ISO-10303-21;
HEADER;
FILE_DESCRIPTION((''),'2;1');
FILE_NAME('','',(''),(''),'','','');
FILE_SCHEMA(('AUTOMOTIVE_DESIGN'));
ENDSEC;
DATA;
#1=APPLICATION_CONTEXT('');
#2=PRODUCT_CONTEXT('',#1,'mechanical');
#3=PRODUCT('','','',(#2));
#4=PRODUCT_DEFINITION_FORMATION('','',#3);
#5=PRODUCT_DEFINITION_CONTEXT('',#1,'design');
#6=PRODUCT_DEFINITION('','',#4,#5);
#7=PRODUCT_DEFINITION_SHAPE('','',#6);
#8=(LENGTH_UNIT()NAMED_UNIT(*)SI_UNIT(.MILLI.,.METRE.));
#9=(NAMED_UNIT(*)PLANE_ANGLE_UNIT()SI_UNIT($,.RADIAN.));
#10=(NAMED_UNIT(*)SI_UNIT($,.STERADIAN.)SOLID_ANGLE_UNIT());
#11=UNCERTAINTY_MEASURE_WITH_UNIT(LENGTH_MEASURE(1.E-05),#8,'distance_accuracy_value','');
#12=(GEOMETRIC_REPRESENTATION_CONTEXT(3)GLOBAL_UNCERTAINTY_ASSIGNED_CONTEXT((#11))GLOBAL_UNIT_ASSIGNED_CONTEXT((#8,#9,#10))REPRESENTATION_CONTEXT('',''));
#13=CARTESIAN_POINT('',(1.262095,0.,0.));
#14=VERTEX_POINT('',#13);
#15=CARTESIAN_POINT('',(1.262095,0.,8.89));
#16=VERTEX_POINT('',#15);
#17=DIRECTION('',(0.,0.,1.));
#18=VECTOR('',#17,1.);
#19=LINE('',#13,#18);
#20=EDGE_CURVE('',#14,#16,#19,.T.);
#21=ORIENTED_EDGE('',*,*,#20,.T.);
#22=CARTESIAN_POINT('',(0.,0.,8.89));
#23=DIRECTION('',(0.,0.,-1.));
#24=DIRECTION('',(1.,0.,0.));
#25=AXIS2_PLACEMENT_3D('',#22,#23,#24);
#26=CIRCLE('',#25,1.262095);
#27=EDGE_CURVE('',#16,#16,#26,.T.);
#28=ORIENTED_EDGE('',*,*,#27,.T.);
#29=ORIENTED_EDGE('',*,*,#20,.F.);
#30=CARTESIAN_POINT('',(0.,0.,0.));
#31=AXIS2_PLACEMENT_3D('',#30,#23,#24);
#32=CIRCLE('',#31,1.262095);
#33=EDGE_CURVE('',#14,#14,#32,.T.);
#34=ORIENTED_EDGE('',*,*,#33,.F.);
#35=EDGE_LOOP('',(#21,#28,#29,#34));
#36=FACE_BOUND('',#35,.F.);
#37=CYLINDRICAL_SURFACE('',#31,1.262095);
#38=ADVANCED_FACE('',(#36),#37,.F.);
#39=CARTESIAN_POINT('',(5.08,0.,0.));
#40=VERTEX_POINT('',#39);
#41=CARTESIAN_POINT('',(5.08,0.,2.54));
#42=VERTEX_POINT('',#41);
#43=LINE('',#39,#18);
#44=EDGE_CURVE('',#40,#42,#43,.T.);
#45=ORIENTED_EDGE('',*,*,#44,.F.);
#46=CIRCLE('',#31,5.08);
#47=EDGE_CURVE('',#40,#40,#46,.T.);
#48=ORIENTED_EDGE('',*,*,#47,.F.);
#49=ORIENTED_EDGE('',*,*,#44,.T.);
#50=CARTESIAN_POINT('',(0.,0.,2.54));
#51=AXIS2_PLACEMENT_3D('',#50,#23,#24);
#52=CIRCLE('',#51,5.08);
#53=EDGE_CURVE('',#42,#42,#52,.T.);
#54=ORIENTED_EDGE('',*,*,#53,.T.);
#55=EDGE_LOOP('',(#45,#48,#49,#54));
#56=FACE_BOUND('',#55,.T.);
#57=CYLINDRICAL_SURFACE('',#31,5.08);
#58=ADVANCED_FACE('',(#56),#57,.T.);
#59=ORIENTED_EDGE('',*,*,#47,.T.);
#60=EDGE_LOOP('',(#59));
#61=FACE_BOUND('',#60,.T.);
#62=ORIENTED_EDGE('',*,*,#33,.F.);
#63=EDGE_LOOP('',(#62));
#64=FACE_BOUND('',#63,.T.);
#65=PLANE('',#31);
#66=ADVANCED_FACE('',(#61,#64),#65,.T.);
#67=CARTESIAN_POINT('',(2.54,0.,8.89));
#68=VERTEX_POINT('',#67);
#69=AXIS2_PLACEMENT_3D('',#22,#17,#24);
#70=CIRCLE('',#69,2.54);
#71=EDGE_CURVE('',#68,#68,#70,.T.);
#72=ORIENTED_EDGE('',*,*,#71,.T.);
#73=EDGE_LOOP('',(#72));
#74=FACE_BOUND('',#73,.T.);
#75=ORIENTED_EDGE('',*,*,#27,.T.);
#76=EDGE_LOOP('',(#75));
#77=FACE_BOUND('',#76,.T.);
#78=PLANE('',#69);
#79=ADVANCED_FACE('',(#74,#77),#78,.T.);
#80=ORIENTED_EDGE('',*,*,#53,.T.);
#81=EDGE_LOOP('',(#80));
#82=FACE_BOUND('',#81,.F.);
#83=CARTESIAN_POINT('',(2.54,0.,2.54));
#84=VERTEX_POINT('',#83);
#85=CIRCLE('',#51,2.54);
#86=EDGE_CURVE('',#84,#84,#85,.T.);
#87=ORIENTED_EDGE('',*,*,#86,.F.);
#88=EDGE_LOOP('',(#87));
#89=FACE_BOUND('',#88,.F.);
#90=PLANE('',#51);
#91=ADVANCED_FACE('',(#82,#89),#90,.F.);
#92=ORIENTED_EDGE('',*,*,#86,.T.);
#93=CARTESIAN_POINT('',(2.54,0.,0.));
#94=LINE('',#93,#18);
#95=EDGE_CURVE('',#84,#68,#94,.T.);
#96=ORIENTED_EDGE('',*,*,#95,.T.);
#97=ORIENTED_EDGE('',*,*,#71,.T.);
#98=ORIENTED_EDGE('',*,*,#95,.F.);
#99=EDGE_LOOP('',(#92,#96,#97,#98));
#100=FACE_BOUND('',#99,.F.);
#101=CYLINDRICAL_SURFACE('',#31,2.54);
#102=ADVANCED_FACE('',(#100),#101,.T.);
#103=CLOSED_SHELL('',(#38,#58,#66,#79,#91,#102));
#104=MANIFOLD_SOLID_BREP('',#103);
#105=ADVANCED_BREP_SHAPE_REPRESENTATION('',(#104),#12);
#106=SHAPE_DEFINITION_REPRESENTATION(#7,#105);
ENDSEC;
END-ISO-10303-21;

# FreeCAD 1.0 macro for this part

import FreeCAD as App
import Part
import Sketcher
from FreeCAD import Vector
Q = App.Units.Quantity

doc = App.newDocument("Part")
body = doc.addObject("PartDesign::Body", "Body")

# Sketch on XY plane
sketch1 = doc.addObject("Sketcher::SketchObject", "Sketch")
body.addObject(sketch1)
sketch1.AttachmentSupport = (doc.XY_Plane, [""])
sketch1.MapMode = "FlatFace"
sketch1.addGeometry(Part.Circle(Vector(0, 0, 0), Vector(0, 0, 1), 2.5), False)
sketch1.addConstraint(Sketcher.Constraint("Coincident", 0, 3, -1, 1))
sketch1.addConstraint(Sketcher.Constraint("Diameter", 0, Q("0.2 in")))
pad1 = doc.addObject("PartDesign::Pad", "Pad")
body.addObject(pad1)
pad1.Profile = sketch1
pad1.Length = Q("0.35 in")

# Sketch on XY plane
sketch2 = doc.addObject("Sketcher::SketchObject", "Sketch001")
body.addObject(sketch2)
sketch2.AttachmentSupport = (doc.XY_Plane, [""])
sketch2.MapMode = "FlatFace"
sketch2.addGeometry(Part.Circle(Vector(0, 0, 0), Vector(0, 0, 1), 5.1), False)
sketch2.addGeometry(Part.Circle(Vector(0, 0, 0), Vector(0, 0, 1), 2.5), False)
sketch2.addConstraint(Sketcher.Constraint("Coincident", 0, 3, -1, 1))
sketch2.addConstraint(Sketcher.Constraint("Coincident", 1, 3, -1, 1))
sketch2.addConstraint(Sketcher.Constraint("Diameter", 0, Q("0.4 in")))
sketch2.addConstraint(Sketcher.Constraint("Diameter", 1, Q("0.2 in")))
pad2 = doc.addObject("PartDesign::Pad", "Pad001")
body.addObject(pad2)
pad2.Profile = sketch2
pad2.Length = Q("0.1 in")

# Sketch on XY plane
sketch3 = doc.addObject("Sketcher::SketchObject", "Sketch002")
body.addObject(sketch3)
sketch3.AttachmentSupport = (doc.XY_Plane, [""])
sketch3.MapMode = "FlatFace"
sketch3.addGeometry(Part.Circle(Vector(0, 0, 0), Vector(0, 0, 1), 1.3), False)
sketch3.addConstraint(Sketcher.Constraint("Coincident", 0, 3, -1, 1))
sketch3.addConstraint(Sketcher.Constraint("Diameter", 0, Q("2.52419 mm")))
pocket1 = doc.addObject("PartDesign::Pocket", "Pocket")
body.addObject(pocket1)
pocket1.Profile = sketch3
pocket1.Length = Q("1 in")
pocket1.Reversed = True

doc.recompute()
